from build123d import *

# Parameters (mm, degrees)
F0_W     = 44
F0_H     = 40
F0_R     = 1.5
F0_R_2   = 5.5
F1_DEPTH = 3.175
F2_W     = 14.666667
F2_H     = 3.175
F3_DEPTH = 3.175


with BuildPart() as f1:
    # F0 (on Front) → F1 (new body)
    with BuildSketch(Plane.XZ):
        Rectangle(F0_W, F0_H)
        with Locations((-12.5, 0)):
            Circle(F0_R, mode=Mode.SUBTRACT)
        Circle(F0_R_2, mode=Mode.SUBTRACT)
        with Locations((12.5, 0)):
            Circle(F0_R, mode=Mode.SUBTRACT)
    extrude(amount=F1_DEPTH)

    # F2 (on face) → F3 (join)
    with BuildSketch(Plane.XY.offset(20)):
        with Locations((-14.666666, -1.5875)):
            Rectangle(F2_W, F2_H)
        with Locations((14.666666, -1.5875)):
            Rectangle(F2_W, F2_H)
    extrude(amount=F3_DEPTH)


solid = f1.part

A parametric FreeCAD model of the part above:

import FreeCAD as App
import Part
import Sketcher

V = App.Vector
Q = App.Units.Quantity


def add_polygon(sketch, points):
    """Adds a closed chain of lines whose ends are joined by coincident constraints."""
    first, n = sketch.GeometryCount, len(points)
    for a, b in zip(points, points[1:] + points[:1]):
        sketch.addGeometry(Part.LineSegment(App.Vector(*a, 0), App.Vector(*b, 0)), False)
    for i in range(n):
        sketch.addConstraint(Sketcher.Constraint("Coincident", first + i, 2, first + (i + 1) % n, 1))

doc = App.newDocument("Part")
body = doc.addObject("PartDesign::Body", "Body")

sketch1 = body.newObject("Sketcher::SketchObject", "Sketch")
sketch1.AttachmentSupport = (doc.getObject("XZ_Plane"), [""])
sketch1.MapMode = "FlatFace"
add_polygon(sketch1, [(-22, 20), (-22, -20), (22, -20), (22, 20)])
sketch1.addGeometry(Part.Circle(V(-12.5, 0, 0), V(0, 0, 1), 1.5), False)
sketch1.addGeometry(Part.Circle(V(0, 0, 0), V(0, 0, 1), 5.5), False)
sketch1.addGeometry(Part.Circle(V(12.5, 0, 0), V(0, 0, 1), 1.5), False)
sketch1.addConstraint(Sketcher.Constraint("Vertical", 0))
sketch1.addConstraint(Sketcher.Constraint("Horizontal", 1))
sketch1.addConstraint(Sketcher.Constraint("Vertical", 2))
sketch1.addConstraint(Sketcher.Constraint("Horizontal", 3))
sketch1.addConstraint(Sketcher.Constraint("Coincident", 5, 3, -1, 1))
sketch1.addConstraint(Sketcher.Constraint("Equal", 4, 6))
sketch1.addConstraint(Sketcher.Constraint("Symmetric", 4, 3, 6, 3, -1, 1))
sketch1.addConstraint(Sketcher.Constraint("Symmetric", 0, 2, 2, 2, -1, 1))
sketch1.addConstraint(Sketcher.Constraint("PointOnObject", 4, 3, -1))
sketch1.addConstraint(Sketcher.Constraint("Diameter", 4, Q("3 mm")))
sketch1.addConstraint(Sketcher.Constraint("Diameter", 5, Q("11 mm")))
sketch1.addConstraint(Sketcher.Constraint("DistanceX", 1, 1, 1, 2, Q("44 mm")))
sketch1.addConstraint(Sketcher.Constraint("DistanceY", 0, 2, 0, 1, Q("40 mm")))
sketch1.addConstraint(Sketcher.Constraint("DistanceX", 4, 3, 6, 3, Q("25 mm")))
pad1 = body.newObject("PartDesign::Pad", "Pad")
pad1.Profile = sketch1
pad1.Length = 3.175

sketch2 = body.newObject("Sketcher::SketchObject", "Sketch001")
sketch2.AttachmentSupport = (doc.getObject("XY_Plane"), [""])
sketch2.MapMode = "FlatFace"
sketch2.AttachmentOffset = App.Placement(V(0, 0, 20), App.Rotation())
add_polygon(sketch2, [(-22, 0), (-22, -3.2), (-7.3, -3.2), (-7.3, 0)])
add_polygon(sketch2, [(7.3, 0), (7.3, -3.2), (22, -3.2), (22, 0)])
sketch2.addConstraint(Sketcher.Constraint("Vertical", 0))
sketch2.addConstraint(Sketcher.Constraint("Horizontal", 1))
sketch2.addConstraint(Sketcher.Constraint("Vertical", 2))
sketch2.addConstraint(Sketcher.Constraint("Horizontal", 3))
sketch2.addConstraint(Sketcher.Constraint("Vertical", 4))
sketch2.addConstraint(Sketcher.Constraint("Horizontal", 5))
sketch2.addConstraint(Sketcher.Constraint("Vertical", 6))
sketch2.addConstraint(Sketcher.Constraint("Horizontal", 7))
sketch2.addConstraint(Sketcher.Constraint("Symmetric", 3, 2, 6, 2, -1, 1))
sketch2.addConstraint(Sketcher.Constraint("Symmetric", 1, 2, 4, 2, -2))
sketch2.addConstraint(Sketcher.Constraint("PointOnObject", 2, 2, -1))
sketch2.addConstraint(Sketcher.Constraint("DistanceX", 0, 2, -1, 1, Q("22 mm")))
sketch2.addConstraint(Sketcher.Constraint("DistanceY", 0, 2, 0, 1, Q("3.175 mm")))
sketch2.addConstraint(Sketcher.Constraint("DistanceX", 1, 1, 1, 2, Q("14.666667 mm")))
pad2 = body.newObject("PartDesign::Pad", "Pad001")
pad2.Profile = sketch2
pad2.Length = 3.175

doc.recompute()
